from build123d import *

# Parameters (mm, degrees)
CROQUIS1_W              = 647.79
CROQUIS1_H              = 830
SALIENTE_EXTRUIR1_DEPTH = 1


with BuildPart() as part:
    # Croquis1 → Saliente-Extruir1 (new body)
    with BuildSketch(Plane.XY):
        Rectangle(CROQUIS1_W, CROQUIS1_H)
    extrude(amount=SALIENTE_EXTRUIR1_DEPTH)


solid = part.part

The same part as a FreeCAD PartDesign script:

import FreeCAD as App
import Part
import Sketcher
from FreeCAD import Vector


def add_polygon(sketch, points):
    """Adds a closed chain of lines whose ends are joined by coincident constraints."""
    first, n = sketch.GeometryCount, len(points)
    for a, b in zip(points, points[1:] + points[:1]):
        sketch.addGeometry(Part.LineSegment(App.Vector(*a, 0), App.Vector(*b, 0)), False)
    for i in range(n):
        sketch.addConstraint(Sketcher.Constraint("Coincident", first + i, 2, first + (i + 1) % n, 1))

doc = App.newDocument("Part")
body = doc.addObject("PartDesign::Body", "Body")

sketch1 = body.newObject("Sketcher::SketchObject", "Sketch")
sketch1.AttachmentSupport = (doc.getObject("XY_Plane"), [""])
sketch1.MapMode = "FlatFace"
add_polygon(sketch1, [(-324, 415), (-324, -415), (324, -415), (324, 415)])
sketch1.addConstraint(Sketcher.Constraint("Vertical", 0))
sketch1.addConstraint(Sketcher.Constraint("Horizontal", 1))
sketch1.addConstraint(Sketcher.Constraint("Vertical", 2))
sketch1.addConstraint(Sketcher.Constraint("Horizontal", 3))
sketch1.addConstraint(Sketcher.Constraint("Symmetric", 0, 2, 2, 2, -1, 1))
sketch1.addConstraint(Sketcher.Constraint("DistanceY", 0, 2, 0, 1, 830.0))
sketch1.addConstraint(Sketcher.Constraint("DistanceX", 1, 1, 1, 2, 647.79))
pad1 = body.newObject("PartDesign::Pad", "Pad")
pad1.Profile = sketch1
pad1.Length = 1

doc.recompute()
